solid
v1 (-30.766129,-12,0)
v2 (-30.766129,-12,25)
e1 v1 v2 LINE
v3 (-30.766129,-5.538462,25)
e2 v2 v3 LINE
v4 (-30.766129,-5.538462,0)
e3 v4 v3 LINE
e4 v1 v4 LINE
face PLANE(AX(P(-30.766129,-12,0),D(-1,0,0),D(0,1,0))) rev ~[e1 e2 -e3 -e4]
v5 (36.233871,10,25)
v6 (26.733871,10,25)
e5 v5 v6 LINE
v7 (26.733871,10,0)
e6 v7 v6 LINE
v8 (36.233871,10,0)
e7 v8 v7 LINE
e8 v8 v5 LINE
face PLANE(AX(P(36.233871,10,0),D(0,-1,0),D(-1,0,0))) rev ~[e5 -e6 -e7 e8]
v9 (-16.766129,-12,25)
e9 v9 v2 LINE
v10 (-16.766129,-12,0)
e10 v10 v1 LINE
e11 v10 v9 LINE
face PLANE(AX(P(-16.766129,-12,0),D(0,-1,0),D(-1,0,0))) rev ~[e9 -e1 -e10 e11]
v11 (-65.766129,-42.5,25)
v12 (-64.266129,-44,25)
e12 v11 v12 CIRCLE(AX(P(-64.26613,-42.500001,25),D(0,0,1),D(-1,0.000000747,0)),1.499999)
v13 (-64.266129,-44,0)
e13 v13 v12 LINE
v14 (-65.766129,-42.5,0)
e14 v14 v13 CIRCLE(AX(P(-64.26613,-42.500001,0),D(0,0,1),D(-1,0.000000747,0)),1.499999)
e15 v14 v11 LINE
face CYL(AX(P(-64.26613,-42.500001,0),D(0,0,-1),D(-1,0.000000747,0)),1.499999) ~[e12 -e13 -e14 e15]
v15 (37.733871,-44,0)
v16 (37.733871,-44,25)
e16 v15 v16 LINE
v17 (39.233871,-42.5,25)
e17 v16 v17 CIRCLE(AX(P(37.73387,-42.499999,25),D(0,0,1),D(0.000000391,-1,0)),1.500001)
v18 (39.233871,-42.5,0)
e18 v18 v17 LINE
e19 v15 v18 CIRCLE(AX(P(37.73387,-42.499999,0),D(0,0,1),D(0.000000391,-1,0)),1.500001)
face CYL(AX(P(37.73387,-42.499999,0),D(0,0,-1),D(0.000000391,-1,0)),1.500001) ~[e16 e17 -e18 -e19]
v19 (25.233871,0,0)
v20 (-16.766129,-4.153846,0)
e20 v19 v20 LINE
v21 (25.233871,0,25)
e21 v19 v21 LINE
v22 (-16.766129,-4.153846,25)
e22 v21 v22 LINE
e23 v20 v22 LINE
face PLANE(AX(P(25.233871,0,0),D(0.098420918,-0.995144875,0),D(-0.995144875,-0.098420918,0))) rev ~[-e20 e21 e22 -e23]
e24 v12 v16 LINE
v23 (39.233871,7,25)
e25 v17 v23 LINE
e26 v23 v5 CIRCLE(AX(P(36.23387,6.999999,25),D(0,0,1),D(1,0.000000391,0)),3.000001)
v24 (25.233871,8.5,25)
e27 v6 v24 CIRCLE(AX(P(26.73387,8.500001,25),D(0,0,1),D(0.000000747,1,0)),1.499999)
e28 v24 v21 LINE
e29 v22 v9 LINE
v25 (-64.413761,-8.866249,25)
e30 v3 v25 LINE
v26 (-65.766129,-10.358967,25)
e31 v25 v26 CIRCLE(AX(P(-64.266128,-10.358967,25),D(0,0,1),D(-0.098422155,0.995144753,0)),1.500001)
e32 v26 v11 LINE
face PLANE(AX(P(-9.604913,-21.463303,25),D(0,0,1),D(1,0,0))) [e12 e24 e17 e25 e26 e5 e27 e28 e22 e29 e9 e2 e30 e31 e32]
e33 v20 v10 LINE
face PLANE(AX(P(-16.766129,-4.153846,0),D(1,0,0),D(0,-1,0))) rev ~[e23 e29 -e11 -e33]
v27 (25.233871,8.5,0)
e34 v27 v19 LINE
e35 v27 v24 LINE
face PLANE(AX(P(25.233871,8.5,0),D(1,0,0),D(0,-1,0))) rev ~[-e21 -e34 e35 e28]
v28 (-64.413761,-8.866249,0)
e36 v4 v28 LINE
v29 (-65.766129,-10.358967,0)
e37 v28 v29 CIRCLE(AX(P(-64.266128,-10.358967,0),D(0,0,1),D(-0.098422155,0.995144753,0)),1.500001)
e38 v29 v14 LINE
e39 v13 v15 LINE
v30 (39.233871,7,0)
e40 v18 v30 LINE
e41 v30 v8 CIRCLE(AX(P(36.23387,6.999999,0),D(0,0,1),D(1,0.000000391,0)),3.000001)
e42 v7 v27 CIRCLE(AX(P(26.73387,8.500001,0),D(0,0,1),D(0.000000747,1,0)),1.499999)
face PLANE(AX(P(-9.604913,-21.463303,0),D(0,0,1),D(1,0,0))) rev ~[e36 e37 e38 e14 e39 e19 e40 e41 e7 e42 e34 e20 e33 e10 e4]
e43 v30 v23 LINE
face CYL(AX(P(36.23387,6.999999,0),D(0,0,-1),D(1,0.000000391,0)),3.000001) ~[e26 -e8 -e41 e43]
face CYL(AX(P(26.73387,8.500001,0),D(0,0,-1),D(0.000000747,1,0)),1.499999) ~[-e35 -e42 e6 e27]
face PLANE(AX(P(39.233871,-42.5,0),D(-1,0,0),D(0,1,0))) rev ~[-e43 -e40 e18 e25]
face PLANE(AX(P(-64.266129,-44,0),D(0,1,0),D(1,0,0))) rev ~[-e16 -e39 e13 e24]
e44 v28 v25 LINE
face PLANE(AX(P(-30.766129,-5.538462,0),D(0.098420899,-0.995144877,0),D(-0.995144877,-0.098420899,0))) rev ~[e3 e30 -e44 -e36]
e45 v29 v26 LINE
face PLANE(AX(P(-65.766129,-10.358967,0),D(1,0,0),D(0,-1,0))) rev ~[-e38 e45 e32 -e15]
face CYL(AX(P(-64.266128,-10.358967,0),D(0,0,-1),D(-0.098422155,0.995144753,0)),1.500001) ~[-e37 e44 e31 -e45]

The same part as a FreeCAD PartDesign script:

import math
import FreeCAD as App
import Part
import Sketcher
from FreeCAD import Vector
Q = App.Units.Quantity

doc = App.newDocument("Part")
body = doc.addObject("PartDesign::Body", "Body")

sketch1 = body.newObject("Sketcher::SketchObject", "Sketch")
sketch1.AttachmentSupport = (doc.getObject("XY_Plane"), [""])
sketch1.MapMode = "FlatFace"
sketch1.addGeometry(Part.LineSegment(Vector(-64.266129, -44, 0), Vector(37.733871, -44, 0)), False)
sketch1.addGeometry(Part.ArcOfCircle(Part.Circle(Vector(37.73387, -42.499999, 0), Vector(0, 0, 1), 1.500001), math.radians(-89.999978), math.radians(-0.000022)), False)
sketch1.addGeometry(Part.LineSegment(Vector(39.233871, -42.5, 0), Vector(39.233871, 7, 0)), False)
sketch1.addGeometry(Part.ArcOfCircle(Part.Circle(Vector(36.23387, 6.999999, 0), Vector(0, 0, 1), 3.000001), math.radians(0.000022), math.radians(89.999978)), False)
sketch1.addGeometry(Part.LineSegment(Vector(36.233871, 10, 0), Vector(26.733871, 10, 0)), False)
sketch1.addGeometry(Part.ArcOfCircle(Part.Circle(Vector(26.73387, 8.500001, 0), Vector(0, 0, 1), 1.499999), math.radians(89.999957), math.radians(180.000043)), False)
sketch1.addGeometry(Part.LineSegment(Vector(25.233871, 8.5, 0), Vector(25.233871, 0, 0)), False)
sketch1.addGeometry(Part.LineSegment(Vector(25.233871, 0, 0), Vector(-16.766129, -4.153846, 0)), False)
sketch1.addGeometry(Part.LineSegment(Vector(-16.766129, -4.153846, 0), Vector(-16.766129, -12, 0)), False)
sketch1.addGeometry(Part.LineSegment(Vector(-16.766129, -12, 0), Vector(-30.766129, -12, 0)), False)
sketch1.addGeometry(Part.LineSegment(Vector(-30.766129, -12, 0), Vector(-30.766129, -5.538462, 0)), False)
sketch1.addGeometry(Part.LineSegment(Vector(-30.766129, -5.538462, 0), Vector(-64.413761, -8.866249, 0)), False)
sketch1.addGeometry(Part.ArcOfCircle(Part.Circle(Vector(-64.266128, -10.358967, 0), Vector(0, 0, 1), 1.500001), math.radians(95.648318), math.radians(179.999981)), False)
sketch1.addGeometry(Part.LineSegment(Vector(-65.766129, -10.358967, 0), Vector(-65.766129, -42.5, 0)), False)
sketch1.addGeometry(Part.ArcOfCircle(Part.Circle(Vector(-64.26613, -42.500001, 0), Vector(0, 0, 1), 1.499999), math.radians(179.999957), math.radians(270.000043)), False)
sketch1.addConstraint(Sketcher.Constraint("Tangent", 0, 2, 1, 1))
sketch1.addConstraint(Sketcher.Constraint("Tangent", 1, 2, 2, 1))
sketch1.addConstraint(Sketcher.Constraint("Tangent", 2, 2, 3, 1))
sketch1.addConstraint(Sketcher.Constraint("Tangent", 3, 2, 4, 1))
sketch1.addConstraint(Sketcher.Constraint("Tangent", 4, 2, 5, 1))
sketch1.addConstraint(Sketcher.Constraint("Tangent", 5, 2, 6, 1))
sketch1.addConstraint(Sketcher.Constraint("Coincident", 6, 2, 7, 1))
sketch1.addConstraint(Sketcher.Constraint("Coincident", 7, 2, 8, 1))
sketch1.addConstraint(Sketcher.Constraint("Coincident", 8, 2, 9, 1))
sketch1.addConstraint(Sketcher.Constraint("Coincident", 9, 2, 10, 1))
sketch1.addConstraint(Sketcher.Constraint("Coincident", 10, 2, 11, 1))
sketch1.addConstraint(Sketcher.Constraint("Tangent", 11, 2, 12, 1))
sketch1.addConstraint(Sketcher.Constraint("Tangent", 12, 2, 13, 1))
sketch1.addConstraint(Sketcher.Constraint("Tangent", 13, 2, 14, 1))
sketch1.addConstraint(Sketcher.Constraint("Tangent", 14, 2, 0, 1))
sketch1.addConstraint(Sketcher.Constraint("Horizontal", 0))
sketch1.addConstraint(Sketcher.Constraint("Vertical", 2))
sketch1.addConstraint(Sketcher.Constraint("Horizontal", 4))
sketch1.addConstraint(Sketcher.Constraint("Vertical", 6))
sketch1.addConstraint(Sketcher.Constraint("Vertical", 8))
sketch1.addConstraint(Sketcher.Constraint("Horizontal", 9))
sketch1.addConstraint(Sketcher.Constraint("Vertical", 10))
sketch1.addConstraint(Sketcher.Constraint("Vertical", 13))
sketch1.addConstraint(Sketcher.Constraint("Equal", 1, 5))
sketch1.addConstraint(Sketcher.Constraint("Equal", 1, 12))
sketch1.addConstraint(Sketcher.Constraint("Equal", 5, 14))
sketch1.addConstraint(Sketcher.Constraint("PointOnObject", 6, 2, -1))
sketch1.addConstraint(Sketcher.Constraint("Parallel", 7, 11))
sketch1.addConstraint(Sketcher.Constraint("Radius", 3, Q("3.000001 mm")))
sketch1.addConstraint(Sketcher.Constraint("Radius", 1, Q("1.500001 mm")))
sketch1.addConstraint(Sketcher.Constraint("DistanceX", 0, 1, 0, 2, Q("102 mm")))
sketch1.addConstraint(Sketcher.Constraint("DistanceX", 9, 2, 9, 1, Q("14 mm")))
sketch1.addConstraint(Sketcher.Constraint("DistanceX", 4, 2, 4, 1, Q("9.5 mm")))
sketch1.addConstraint(Sketcher.Constraint("DistanceY", 2, 1, 2, 2, Q("49.5 mm")))
sketch1.addConstraint(Sketcher.Constraint("DistanceY", 6, 2, 6, 1, Q("8.5 mm")))
sketch1.addConstraint(Sketcher.Constraint("DistanceY", 8, 2, -1, 1, Q("12 mm")))
sketch1.addConstraint(Sketcher.Constraint("DistanceX", 7, 2, 6, 2, Q("42 mm")))
sketch1.addConstraint(Sketcher.Constraint("Distance", 7, Q("42.20491 mm")))
sketch1.addConstraint(Sketcher.Constraint("DistanceY", 10, 1, 10, 2, Q("6.461538 mm")))
sketch1.addConstraint(Sketcher.Constraint("DistanceX", -1, 1, 1, 3, Q("37.73387 mm")))
pad1 = body.newObject("PartDesign::Pad", "Pad")
pad1.Profile = sketch1
pad1.Length = 25

doc.recompute()
